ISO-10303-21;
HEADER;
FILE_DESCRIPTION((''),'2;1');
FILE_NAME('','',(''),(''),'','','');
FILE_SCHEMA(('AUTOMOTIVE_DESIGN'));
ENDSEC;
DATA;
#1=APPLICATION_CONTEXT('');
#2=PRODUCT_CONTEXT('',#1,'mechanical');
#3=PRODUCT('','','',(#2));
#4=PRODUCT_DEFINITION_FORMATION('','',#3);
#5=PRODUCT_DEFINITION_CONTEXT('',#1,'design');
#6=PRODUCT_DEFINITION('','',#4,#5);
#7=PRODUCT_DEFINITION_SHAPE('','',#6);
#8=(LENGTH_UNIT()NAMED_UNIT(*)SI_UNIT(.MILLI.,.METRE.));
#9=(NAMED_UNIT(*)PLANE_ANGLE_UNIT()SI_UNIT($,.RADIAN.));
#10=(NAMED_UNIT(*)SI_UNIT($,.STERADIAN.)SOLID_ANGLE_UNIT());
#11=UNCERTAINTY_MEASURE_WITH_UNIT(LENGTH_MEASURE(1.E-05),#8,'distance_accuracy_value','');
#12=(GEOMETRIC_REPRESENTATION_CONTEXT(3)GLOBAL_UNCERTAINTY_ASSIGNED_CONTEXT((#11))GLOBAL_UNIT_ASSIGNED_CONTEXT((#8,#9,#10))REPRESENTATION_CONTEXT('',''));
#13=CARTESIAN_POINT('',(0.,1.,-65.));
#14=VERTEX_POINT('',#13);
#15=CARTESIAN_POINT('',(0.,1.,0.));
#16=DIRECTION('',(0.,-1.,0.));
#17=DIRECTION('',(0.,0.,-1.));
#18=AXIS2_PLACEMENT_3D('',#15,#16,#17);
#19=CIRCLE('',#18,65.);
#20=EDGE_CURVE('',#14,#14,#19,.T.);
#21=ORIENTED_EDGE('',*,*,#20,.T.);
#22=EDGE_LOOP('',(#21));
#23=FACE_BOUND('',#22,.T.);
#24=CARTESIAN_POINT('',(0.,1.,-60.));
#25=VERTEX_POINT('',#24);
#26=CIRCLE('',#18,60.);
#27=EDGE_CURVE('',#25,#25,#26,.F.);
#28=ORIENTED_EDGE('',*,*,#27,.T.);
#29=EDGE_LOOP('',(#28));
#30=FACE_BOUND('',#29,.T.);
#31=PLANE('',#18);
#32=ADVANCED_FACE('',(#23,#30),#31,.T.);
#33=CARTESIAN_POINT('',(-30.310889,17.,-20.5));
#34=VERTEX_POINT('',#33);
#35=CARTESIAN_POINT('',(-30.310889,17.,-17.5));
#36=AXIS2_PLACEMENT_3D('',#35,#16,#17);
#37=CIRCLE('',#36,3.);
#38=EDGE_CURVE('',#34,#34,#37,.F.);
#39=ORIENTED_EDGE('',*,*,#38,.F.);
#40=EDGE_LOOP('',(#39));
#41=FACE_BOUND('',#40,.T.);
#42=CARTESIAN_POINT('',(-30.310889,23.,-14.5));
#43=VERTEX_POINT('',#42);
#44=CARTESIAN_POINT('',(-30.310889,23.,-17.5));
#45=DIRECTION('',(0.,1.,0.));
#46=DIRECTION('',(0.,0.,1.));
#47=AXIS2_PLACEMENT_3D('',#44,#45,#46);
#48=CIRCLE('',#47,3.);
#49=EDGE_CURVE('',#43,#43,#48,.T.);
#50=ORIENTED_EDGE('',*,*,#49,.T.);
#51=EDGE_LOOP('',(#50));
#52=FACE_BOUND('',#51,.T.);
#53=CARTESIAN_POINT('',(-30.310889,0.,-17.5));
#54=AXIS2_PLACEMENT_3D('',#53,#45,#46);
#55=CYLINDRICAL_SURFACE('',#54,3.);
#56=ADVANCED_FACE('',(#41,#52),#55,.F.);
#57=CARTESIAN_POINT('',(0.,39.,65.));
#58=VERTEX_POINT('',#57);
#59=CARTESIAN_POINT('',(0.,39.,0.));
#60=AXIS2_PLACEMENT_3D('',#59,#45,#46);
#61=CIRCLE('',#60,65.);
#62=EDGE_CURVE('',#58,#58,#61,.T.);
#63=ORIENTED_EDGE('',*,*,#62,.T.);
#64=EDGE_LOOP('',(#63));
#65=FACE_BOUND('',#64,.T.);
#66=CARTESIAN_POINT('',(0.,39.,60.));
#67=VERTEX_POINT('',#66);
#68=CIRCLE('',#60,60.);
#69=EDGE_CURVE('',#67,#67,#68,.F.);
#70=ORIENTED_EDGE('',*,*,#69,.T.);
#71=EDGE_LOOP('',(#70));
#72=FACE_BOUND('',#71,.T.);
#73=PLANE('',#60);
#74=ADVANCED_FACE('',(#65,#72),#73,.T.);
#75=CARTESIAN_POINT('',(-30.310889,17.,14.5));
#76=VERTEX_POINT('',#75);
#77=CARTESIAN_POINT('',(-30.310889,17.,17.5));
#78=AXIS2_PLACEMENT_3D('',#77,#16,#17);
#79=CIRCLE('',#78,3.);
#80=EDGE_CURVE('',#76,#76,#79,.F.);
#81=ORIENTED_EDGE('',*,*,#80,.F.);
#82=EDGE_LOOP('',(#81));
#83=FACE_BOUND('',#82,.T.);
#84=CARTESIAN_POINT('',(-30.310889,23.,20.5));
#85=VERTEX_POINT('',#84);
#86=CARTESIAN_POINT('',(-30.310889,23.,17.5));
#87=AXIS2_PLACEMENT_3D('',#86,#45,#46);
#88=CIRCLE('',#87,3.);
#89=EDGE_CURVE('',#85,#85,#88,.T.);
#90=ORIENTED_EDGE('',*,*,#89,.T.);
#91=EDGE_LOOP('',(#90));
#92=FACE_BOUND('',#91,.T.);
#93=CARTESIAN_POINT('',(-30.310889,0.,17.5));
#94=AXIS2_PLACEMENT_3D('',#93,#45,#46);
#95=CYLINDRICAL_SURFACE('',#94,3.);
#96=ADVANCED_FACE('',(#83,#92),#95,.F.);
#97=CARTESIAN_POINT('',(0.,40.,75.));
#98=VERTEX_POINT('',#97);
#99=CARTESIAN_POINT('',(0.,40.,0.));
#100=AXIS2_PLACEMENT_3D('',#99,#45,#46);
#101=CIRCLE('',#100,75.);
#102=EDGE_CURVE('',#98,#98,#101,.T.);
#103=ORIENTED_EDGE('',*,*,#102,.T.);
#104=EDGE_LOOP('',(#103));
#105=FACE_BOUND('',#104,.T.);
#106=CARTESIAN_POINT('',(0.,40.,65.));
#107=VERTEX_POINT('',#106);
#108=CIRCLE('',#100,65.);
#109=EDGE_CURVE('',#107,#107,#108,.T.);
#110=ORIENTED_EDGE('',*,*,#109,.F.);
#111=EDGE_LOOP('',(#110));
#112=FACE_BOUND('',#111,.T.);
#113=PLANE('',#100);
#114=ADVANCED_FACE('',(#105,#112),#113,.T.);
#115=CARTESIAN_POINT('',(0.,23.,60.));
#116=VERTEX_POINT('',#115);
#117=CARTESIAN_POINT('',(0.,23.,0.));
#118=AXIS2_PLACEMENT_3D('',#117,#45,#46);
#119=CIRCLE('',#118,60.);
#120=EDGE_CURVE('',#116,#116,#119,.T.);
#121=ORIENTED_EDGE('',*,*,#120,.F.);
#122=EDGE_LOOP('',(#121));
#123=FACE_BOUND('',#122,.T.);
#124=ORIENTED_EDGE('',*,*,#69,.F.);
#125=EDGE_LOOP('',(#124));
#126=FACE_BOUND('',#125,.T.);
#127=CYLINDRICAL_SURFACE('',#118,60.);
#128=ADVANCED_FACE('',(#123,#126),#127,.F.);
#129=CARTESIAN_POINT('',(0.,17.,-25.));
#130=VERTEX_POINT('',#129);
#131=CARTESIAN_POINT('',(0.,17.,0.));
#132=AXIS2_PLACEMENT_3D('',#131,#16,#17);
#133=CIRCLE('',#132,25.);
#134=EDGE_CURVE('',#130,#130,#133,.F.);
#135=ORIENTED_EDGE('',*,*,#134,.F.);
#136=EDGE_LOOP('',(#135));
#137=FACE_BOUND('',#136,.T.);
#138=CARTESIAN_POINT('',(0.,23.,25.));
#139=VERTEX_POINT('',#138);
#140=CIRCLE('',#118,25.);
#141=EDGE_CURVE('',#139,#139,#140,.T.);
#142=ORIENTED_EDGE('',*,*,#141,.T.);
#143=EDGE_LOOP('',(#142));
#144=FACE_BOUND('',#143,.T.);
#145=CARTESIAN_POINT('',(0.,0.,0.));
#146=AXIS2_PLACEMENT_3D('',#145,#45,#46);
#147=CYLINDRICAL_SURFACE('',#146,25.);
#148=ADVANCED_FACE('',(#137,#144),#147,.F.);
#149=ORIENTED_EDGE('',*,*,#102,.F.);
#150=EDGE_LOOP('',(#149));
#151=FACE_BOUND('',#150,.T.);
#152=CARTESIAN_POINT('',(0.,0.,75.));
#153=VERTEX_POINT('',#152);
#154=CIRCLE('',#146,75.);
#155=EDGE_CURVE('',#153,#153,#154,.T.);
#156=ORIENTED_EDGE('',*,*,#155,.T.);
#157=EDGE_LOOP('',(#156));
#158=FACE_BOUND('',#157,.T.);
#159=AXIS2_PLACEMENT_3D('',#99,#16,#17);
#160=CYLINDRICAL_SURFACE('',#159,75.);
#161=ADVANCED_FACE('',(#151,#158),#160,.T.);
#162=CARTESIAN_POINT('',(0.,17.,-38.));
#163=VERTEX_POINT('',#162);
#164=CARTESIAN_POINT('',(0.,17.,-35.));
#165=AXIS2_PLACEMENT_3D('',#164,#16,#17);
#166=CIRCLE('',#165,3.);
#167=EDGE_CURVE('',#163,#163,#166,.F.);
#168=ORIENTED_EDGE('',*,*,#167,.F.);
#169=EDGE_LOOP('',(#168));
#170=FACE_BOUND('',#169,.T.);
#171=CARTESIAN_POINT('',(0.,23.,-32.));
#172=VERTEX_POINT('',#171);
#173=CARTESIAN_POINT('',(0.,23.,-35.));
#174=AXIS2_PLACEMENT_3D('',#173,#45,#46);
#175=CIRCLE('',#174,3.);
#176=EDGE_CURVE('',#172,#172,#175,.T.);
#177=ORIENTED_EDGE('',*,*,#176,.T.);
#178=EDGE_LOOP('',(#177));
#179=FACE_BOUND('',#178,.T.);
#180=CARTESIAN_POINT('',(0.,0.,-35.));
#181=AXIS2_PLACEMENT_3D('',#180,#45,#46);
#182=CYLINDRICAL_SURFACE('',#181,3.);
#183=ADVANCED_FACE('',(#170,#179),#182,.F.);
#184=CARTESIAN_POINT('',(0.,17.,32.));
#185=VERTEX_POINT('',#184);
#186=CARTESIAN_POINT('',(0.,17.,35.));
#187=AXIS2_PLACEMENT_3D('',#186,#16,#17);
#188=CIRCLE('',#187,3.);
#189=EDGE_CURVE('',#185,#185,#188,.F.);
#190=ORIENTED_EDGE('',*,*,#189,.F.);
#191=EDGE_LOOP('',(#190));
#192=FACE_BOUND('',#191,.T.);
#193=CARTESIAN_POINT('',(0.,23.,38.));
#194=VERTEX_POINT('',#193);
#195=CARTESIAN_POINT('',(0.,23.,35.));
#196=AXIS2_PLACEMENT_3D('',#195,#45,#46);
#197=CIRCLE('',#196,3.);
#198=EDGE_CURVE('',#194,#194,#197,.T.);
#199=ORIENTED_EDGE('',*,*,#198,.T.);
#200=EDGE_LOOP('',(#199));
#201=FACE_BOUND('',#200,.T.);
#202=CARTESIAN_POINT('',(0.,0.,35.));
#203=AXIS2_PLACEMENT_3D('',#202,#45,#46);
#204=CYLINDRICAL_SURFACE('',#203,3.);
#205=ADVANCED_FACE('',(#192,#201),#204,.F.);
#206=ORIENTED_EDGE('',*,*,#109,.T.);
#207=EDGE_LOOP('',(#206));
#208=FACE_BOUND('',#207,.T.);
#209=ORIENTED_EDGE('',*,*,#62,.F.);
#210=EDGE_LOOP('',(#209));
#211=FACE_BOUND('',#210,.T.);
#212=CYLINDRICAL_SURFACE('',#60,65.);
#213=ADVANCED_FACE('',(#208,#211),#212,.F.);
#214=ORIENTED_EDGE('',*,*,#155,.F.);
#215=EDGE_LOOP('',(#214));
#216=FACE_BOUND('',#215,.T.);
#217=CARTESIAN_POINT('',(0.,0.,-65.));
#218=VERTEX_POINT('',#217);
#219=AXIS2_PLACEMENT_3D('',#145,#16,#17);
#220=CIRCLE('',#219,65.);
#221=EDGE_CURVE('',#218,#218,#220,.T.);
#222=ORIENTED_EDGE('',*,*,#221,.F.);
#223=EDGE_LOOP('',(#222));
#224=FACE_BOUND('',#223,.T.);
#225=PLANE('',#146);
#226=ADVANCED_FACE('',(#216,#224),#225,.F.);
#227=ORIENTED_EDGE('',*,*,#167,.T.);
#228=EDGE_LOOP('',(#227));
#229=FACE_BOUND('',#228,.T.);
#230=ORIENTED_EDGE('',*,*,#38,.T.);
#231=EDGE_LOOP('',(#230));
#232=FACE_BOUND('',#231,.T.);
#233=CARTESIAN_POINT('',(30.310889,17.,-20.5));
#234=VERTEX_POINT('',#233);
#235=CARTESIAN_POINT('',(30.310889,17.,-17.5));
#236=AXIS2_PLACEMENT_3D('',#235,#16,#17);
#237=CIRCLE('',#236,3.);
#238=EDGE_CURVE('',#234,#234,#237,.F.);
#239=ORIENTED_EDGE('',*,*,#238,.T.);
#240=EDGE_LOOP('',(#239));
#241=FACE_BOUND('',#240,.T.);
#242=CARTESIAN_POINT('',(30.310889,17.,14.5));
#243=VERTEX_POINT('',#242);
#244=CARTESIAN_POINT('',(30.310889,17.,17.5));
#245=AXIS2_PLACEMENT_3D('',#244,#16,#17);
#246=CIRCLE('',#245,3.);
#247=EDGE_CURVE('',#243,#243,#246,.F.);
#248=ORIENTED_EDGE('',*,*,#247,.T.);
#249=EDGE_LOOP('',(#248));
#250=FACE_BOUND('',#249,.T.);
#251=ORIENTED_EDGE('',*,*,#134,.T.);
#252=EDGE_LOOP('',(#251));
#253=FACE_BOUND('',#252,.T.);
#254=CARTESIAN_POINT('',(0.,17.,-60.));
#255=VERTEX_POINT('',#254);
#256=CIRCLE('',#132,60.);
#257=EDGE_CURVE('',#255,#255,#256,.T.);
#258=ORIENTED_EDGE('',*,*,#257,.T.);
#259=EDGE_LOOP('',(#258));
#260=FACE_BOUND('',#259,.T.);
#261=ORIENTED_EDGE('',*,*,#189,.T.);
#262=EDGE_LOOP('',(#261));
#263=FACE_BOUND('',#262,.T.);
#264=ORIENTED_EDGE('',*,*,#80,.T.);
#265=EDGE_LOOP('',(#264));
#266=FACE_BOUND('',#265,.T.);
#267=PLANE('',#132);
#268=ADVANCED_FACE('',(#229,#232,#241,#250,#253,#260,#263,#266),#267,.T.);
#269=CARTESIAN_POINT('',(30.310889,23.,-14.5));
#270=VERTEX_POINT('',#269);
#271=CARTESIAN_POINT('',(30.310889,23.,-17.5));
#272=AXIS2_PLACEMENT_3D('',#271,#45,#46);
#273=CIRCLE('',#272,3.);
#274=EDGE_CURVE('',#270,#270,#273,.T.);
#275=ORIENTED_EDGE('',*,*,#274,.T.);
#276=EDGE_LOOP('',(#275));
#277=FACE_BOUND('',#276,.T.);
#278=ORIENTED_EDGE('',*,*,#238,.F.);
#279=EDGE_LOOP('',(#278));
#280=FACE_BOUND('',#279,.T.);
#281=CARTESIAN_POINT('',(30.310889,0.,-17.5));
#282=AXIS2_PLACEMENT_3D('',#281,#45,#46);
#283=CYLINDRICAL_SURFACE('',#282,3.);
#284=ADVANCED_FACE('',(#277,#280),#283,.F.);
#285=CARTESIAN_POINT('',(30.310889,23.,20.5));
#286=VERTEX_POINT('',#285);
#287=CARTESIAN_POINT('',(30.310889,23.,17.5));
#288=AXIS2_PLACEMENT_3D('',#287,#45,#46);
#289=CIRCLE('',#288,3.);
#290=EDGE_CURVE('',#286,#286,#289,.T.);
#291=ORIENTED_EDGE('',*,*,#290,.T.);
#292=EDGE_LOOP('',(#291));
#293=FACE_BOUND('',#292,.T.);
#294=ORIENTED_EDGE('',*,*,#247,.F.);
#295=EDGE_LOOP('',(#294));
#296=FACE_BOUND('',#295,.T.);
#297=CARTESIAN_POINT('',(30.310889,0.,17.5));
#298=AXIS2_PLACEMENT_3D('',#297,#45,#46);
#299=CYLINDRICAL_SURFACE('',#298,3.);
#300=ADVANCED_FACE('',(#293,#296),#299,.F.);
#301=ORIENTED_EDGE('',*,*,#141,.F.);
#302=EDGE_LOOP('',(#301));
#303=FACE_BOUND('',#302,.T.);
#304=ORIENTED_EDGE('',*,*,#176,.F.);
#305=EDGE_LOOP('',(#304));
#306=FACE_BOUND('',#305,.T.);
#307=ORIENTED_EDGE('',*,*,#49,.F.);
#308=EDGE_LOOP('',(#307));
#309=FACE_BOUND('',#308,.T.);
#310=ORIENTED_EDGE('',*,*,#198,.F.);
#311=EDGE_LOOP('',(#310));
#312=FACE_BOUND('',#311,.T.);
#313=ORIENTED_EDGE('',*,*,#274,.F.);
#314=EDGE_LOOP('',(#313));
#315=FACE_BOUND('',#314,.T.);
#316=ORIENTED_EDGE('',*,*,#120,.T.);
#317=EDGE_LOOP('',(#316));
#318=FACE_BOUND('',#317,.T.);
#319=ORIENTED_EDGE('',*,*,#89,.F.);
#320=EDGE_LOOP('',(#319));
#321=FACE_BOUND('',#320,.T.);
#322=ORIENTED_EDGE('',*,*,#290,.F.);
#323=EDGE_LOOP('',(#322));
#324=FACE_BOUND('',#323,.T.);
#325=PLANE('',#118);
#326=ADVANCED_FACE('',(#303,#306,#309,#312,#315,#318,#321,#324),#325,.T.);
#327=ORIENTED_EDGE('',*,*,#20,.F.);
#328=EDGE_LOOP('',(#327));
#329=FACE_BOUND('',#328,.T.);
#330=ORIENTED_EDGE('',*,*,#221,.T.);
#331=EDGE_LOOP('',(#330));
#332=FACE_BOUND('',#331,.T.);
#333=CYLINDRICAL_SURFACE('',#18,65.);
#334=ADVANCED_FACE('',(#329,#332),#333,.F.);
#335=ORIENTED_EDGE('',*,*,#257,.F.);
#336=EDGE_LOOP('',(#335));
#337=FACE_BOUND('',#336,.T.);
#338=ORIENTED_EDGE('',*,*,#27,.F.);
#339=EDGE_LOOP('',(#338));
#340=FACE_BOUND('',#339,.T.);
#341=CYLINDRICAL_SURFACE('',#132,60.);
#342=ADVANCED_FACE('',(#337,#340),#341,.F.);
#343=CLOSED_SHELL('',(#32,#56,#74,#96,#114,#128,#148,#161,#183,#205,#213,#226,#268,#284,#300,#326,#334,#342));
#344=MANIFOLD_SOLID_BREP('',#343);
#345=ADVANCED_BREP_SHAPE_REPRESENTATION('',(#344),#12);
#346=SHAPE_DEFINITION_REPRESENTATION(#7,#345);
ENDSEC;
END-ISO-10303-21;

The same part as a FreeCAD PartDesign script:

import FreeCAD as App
import Part
import Sketcher
from FreeCAD import Vector
Q = App.Units.Quantity

doc = App.newDocument("Part")
body = doc.addObject("PartDesign::Body", "Body")

# Sketch on XZ plane
sketch1 = body.newObject("Sketcher::SketchObject", "Sketch")
sketch1.AttachmentSupport = (doc.getObject("XZ_Plane"), [""])
sketch1.MapMode = "FlatFace"
sketch1.addGeometry(Part.Circle(Vector(0, 0, 0), Vector(0, 0, 1), 75), False)
sketch1.addConstraint(Sketcher.Constraint("Coincident", 0, 3, -1, 1))
sketch1.addConstraint(Sketcher.Constraint("Diameter", 0, Q("150 mm")))
pad1 = body.newObject("PartDesign::Pad", "Pad")
pad1.Profile = sketch1
pad1.Length = 40
pad1.Reversed = True

# Sketch on XZ plane
sketch2 = body.newObject("Sketcher::SketchObject", "Sketch001")
sketch2.AttachmentSupport = (doc.getObject("XZ_Plane"), [""])
sketch2.MapMode = "FlatFace"
sketch2.AttachmentOffset = App.Placement(Vector(0, 0, -40), App.Rotation())
sketch2.addGeometry(Part.Circle(Vector(0, 0, 0), Vector(0, 0, 1), 60), False)
sketch2.addConstraint(Sketcher.Constraint("Coincident", 0, 3, -1, 1))
sketch2.addConstraint(Sketcher.Constraint("Diameter", 0, Q("120 mm")))
pocket1 = body.newObject("PartDesign::Pocket", "Pocket")
pocket1.Profile = sketch2
pocket1.Length = 17
pocket1.Reversed = True

# Sketch on XZ plane
sketch3 = body.newObject("Sketcher::SketchObject", "Sketch002")
sketch3.AttachmentSupport = (doc.getObject("XZ_Plane"), [""])
sketch3.MapMode = "FlatFace"
sketch3.AttachmentOffset = App.Placement(Vector(0, 0, -23), App.Rotation())
sketch3.addGeometry(Part.Circle(Vector(0, 0, 0), Vector(0, 0, 1), 25), False)
sketch3.addConstraint(Sketcher.Constraint("Coincident", 0, 3, -1, 1))
sketch3.addConstraint(Sketcher.Constraint("Diameter", 0, Q("50 mm")))
pocket2 = body.newObject("PartDesign::Pocket", "Pocket001")
pocket2.Profile = sketch3
pocket2.Type = "ThroughAll"
pocket2.Reversed = True

# Sketch on XZ plane
sketch4 = body.newObject("Sketcher::SketchObject", "Sketch003")
sketch4.AttachmentSupport = (doc.getObject("XZ_Plane"), [""])
sketch4.MapMode = "FlatFace"
sketch4.AttachmentOffset = App.Placement(Vector(0, 0, -23), App.Rotation())
sketch4.addGeometry(Part.Circle(Vector(0, -35, 0), Vector(0, 0, 1), 3), False)
sketch4.addGeometry(Part.Circle(Vector(30.310889, -17.5, 0), Vector(0, 0, 1), 3), False)
sketch4.addGeometry(Part.Circle(Vector(30.310889, 17.5, 0), Vector(0, 0, 1), 3), False)
sketch4.addGeometry(Part.Circle(Vector(0, 35, 0), Vector(0, 0, 1), 3), False)
sketch4.addGeometry(Part.Circle(Vector(-30.310889, 17.5, 0), Vector(0, 0, 1), 3), False)
sketch4.addGeometry(Part.Circle(Vector(-30.310889, -17.5, 0), Vector(0, 0, 1), 3), False)
sketch4.addConstraint(Sketcher.Constraint("Equal", 0, 1))
sketch4.addConstraint(Sketcher.Constraint("Equal", 1, 2))
sketch4.addConstraint(Sketcher.Constraint("Equal", 2, 3))
sketch4.addConstraint(Sketcher.Constraint("Equal", 3, 4))
sketch4.addConstraint(Sketcher.Constraint("Equal", 4, 5))
sketch4.addConstraint(Sketcher.Constraint("Symmetric", 0, 3, 3, 3, -1, 1))
sketch4.addConstraint(Sketcher.Constraint("Symmetric", 1, 3, 4, 3, -1, 1))
sketch4.addConstraint(Sketcher.Constraint("Symmetric", 2, 3, 5, 3, -1, 1))
sketch4.addConstraint(Sketcher.Constraint("Symmetric", 2, 3, 4, 3, -2))
sketch4.addConstraint(Sketcher.Constraint("PointOnObject", 0, 3, -2))
sketch4.addConstraint(Sketcher.Constraint("Diameter", 0, Q("6 mm")))
sketch4.addConstraint(Sketcher.Constraint("DistanceY", 0, 3, -1, 1, Q("35 mm")))
sketch4.addConstraint(Sketcher.Constraint("DistanceY", 1, 3, 2, 3, Q("35 mm")))
sketch4.addConstraint(Sketcher.Constraint("DistanceX", -1, 1, 1, 3, Q("30.310889 mm")))
pocket3 = body.newObject("PartDesign::Pocket", "Pocket002")
pocket3.Profile = sketch4
pocket3.Type = "ThroughAll"
pocket3.Reversed = True

# Sketch on XZ plane
sketch5 = body.newObject("Sketcher::SketchObject", "Sketch004")
sketch5.AttachmentSupport = (doc.getObject("XZ_Plane"), [""])
sketch5.MapMode = "FlatFace"
sketch5.addGeometry(Part.Circle(Vector(0, 0, 0), Vector(0, 0, 1), 60), False)
sketch5.addConstraint(Sketcher.Constraint("Coincident", 0, 3, -1, 1))
sketch5.addConstraint(Sketcher.Constraint("Diameter", 0, Q("120 mm")))
pocket4 = body.newObject("PartDesign::Pocket", "Pocket003")
pocket4.Profile = sketch5
pocket4.Length = 17

# Sketch on XZ plane
sketch6 = body.newObject("Sketcher::SketchObject", "Sketch005")
sketch6.AttachmentSupport = (doc.getObject("XZ_Plane"), [""])
sketch6.MapMode = "FlatFace"
sketch6.addGeometry(Part.Circle(Vector(0, 0, 0), Vector(0, 0, 1), 65), False)
sketch6.addConstraint(Sketcher.Constraint("Coincident", 0, 3, -1, 1))
sketch6.addConstraint(Sketcher.Constraint("Diameter", 0, Q("130 mm")))
pocket5 = body.newObject("PartDesign::Pocket", "Pocket004")
pocket5.Profile = sketch6
pocket5.Length = 1

# Sketch on XZ plane
sketch7 = body.newObject("Sketcher::SketchObject", "Sketch006")
sketch7.AttachmentSupport = (doc.getObject("XZ_Plane"), [""])
sketch7.MapMode = "FlatFace"
sketch7.AttachmentOffset = App.Placement(Vector(0, 0, -40), App.Rotation())
sketch7.addGeometry(Part.Circle(Vector(0, 0, 0), Vector(0, 0, 1), 65), False)
sketch7.addConstraint(Sketcher.Constraint("Coincident", 0, 3, -1, 1))
sketch7.addConstraint(Sketcher.Constraint("Diameter", 0, Q("130 mm")))
pocket6 = body.newObject("PartDesign::Pocket", "Pocket005")
pocket6.Profile = sketch7
pocket6.Length = 1
pocket6.Reversed = True

doc.recompute()
